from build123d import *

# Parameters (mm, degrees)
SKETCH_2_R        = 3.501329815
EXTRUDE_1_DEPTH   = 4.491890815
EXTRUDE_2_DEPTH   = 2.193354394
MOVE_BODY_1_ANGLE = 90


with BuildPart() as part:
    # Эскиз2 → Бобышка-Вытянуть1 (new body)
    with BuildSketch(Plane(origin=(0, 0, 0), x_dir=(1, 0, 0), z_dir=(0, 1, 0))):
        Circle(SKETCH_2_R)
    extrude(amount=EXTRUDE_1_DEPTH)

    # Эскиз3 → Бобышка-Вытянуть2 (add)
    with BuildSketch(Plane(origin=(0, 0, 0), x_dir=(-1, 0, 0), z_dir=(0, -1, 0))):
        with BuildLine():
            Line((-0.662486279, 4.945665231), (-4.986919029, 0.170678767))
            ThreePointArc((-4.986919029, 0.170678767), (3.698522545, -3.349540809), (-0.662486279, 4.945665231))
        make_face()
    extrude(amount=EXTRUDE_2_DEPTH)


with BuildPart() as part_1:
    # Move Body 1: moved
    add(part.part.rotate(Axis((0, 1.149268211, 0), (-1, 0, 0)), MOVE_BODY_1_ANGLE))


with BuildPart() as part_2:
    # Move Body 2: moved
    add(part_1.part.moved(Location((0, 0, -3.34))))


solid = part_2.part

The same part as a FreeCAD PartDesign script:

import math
import FreeCAD as App
import Part
import Sketcher

doc = App.newDocument("Part")
body = doc.addObject("PartDesign::Body", "Body")

sketch1 = body.newObject("Sketcher::SketchObject", "Sketch")
sketch1.AttachmentSupport = (doc.getObject("XZ_Plane"), [""])
sketch1.MapMode = "FlatFace"
sketch1.addGeometry(Part.Circle(App.Vector(0, 0, 0), App.Vector(0, 0, 1), 3.50133), False)
sketch1.addConstraint([
    Sketcher.Constraint("Coincident", 0, 3, -1, 1),
    Sketcher.Constraint("Diameter", 0, 7.00266),
])
pad1 = body.newObject("PartDesign::Pad", "Pad")
pad1.Profile = sketch1
pad1.Length = 4.491891
pad1.Reversed = True

sketch2 = body.newObject("Sketcher::SketchObject", "Sketch001")
sketch2.AttachmentSupport = (doc.getObject("XZ_Plane"), [""])
sketch2.MapMode = "FlatFace"
sketch2.addGeometry([
    Part.LineSegment(App.Vector(0.662486, -4.945665, 0), App.Vector(4.986919, -0.170679, 0)),
    Part.ArcOfCircle(Part.Circle(App.Vector(0, 0, 0), App.Vector(0, 0, 1), 4.989839), math.radians(-1.9602), math.radians(277.62952)),
], False)
sketch2.addConstraint([
    Sketcher.Constraint("Coincident", 0, 1, 1, 2),
    Sketcher.Constraint("Coincident", 1, 1, 0, 2),
    Sketcher.Constraint("Coincident", 1, 3, -1, 1),
    Sketcher.Constraint("Radius", 1, 4.989839),
    Sketcher.Constraint("DistanceX", -1, 1, 1, 1, 4.986919),
    Sketcher.Constraint("Distance", 0, 6.442144),
])
pad2 = body.newObject("PartDesign::Pad", "Pad001")
pad2.Profile = sketch2
pad2.Length = 2.193354
body2 = doc.addObject("PartDesign::Body", "Body001")
doc.recompute()

body.Placement = App.Placement(App.Vector(0, 1.149268, 1.149268), App.Rotation(App.Vector(-1, 0, 0), 90))
boolean = body2.newObject("PartDesign::Boolean", "Boolean")
boolean.Type = "Fuse"
boolean.addObjects([body])
body3 = doc.addObject("PartDesign::Body", "Body002")
doc.recompute()

body2.Placement = App.Placement(App.Vector(0, 0, -3.34), App.Rotation(App.Vector(0, 0, 1), 0))
boolean2 = body3.newObject("PartDesign::Boolean", "Boolean001")
boolean2.Type = "Fuse"
boolean2.addObjects([body2])

doc.recompute()
